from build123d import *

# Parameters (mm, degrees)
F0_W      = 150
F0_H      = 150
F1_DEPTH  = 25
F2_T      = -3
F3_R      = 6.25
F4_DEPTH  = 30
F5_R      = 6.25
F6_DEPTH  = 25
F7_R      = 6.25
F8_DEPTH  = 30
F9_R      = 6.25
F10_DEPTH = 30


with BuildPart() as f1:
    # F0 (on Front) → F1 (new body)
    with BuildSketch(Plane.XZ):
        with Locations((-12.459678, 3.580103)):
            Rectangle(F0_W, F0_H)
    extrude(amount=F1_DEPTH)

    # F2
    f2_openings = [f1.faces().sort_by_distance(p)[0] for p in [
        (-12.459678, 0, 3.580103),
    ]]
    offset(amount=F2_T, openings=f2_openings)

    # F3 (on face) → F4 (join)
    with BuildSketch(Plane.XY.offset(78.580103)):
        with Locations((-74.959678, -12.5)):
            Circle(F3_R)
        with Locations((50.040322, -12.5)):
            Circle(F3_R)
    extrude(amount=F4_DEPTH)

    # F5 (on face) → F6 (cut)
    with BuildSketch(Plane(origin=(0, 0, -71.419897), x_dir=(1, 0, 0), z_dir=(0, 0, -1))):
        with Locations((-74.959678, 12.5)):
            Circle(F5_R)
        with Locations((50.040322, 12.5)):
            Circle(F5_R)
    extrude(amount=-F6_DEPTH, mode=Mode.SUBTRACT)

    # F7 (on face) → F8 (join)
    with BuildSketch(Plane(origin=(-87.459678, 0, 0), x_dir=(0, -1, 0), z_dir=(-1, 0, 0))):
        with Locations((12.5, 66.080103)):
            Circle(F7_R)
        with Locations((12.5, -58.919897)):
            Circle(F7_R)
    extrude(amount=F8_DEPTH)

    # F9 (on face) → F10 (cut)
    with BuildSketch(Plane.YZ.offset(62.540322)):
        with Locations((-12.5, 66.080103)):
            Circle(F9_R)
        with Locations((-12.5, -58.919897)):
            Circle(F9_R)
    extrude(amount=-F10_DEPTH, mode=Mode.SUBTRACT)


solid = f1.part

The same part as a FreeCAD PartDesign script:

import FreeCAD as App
import Part
import Sketcher

V = App.Vector


def faces_at(feature, points):
    """Names of the faces that lie closest to the given points."""
    faces = feature.Shape.Faces
    near = lambda p: min(range(len(faces)), key=lambda i: faces[i].distToShape(Part.Vertex(*p))[0])
    return sorted({f"Face{near(p) + 1}" for p in points})

doc = App.newDocument("Part")
params = doc.addObject("Spreadsheet::Sheet", "Params")
for row, (alias, value) in enumerate([
    ("sketch1_width", "150 mm"),
    ("pad1_length", "25 mm"),
    ("thickness_wall", "3 mm"),
    ("sketch2_diameter", "12.5 mm"),
    ("pad2_length", "30 mm"),
    ("sketch3_diameter", "12.5 mm"),
    ("pocket1_length", "25 mm"),
    ("sketch4_diameter", "12.5 mm"),
    ("pad3_length", "30 mm"),
    ("sketch5_diameter", "12.5 mm"),
    ("pocket2_length", "30 mm"),
], start=1):
    params.set(f"A{row}", alias)
    params.set(f"B{row}", "=" + value)
    params.setAlias(f"B{row}", alias)

body = doc.addObject("PartDesign::Body", "Body")

# Sketch on XZ plane
sketch1 = body.newObject("Sketcher::SketchObject", "Sketch")
sketch1.AttachmentSupport = (doc.getObject("XZ_Plane"), [""])
sketch1.MapMode = "FlatFace"
sketch1.addGeometry(Part.LineSegment(V(-87, 79, 0), V(-87, -71, 0)), False)
sketch1.addGeometry(Part.LineSegment(V(-87, -71, 0), V(63, -71, 0)), False)
sketch1.addGeometry(Part.LineSegment(V(63, -71, 0), V(63, 79, 0)), False)
sketch1.addGeometry(Part.LineSegment(V(63, 79, 0), V(-87, 79, 0)), False)
sketch1.addConstraint(Sketcher.Constraint("Coincident", 0, 2, 1, 1))
sketch1.addConstraint(Sketcher.Constraint("Coincident", 1, 2, 2, 1))
sketch1.addConstraint(Sketcher.Constraint("Coincident", 2, 2, 3, 1))
sketch1.addConstraint(Sketcher.Constraint("Coincident", 3, 2, 0, 1))
sketch1.addConstraint(Sketcher.Constraint("Vertical", 0))
sketch1.addConstraint(Sketcher.Constraint("Horizontal", 1))
sketch1.addConstraint(Sketcher.Constraint("Vertical", 2))
sketch1.addConstraint(Sketcher.Constraint("Horizontal", 3))
sketch1.addConstraint(Sketcher.Constraint("Equal", 3, 0))
sketch1.addConstraint(Sketcher.Constraint("DistanceX", 1, 1, 1, 2, 150.0))
sketch1.addConstraint(Sketcher.Constraint("DistanceX", 0, 2, -1, 1, 87.459678))
sketch1.addConstraint(Sketcher.Constraint("DistanceY", 0, 2, -1, 1, 71.419897))
sketch1.setExpression("Constraints[9]", "Params.sketch1_width")
pad1 = body.newObject("PartDesign::Pad", "Pad")
pad1.Profile = sketch1
pad1.setExpression("Length", "Params.pad1_length")
doc.recompute()

thickness = body.newObject("PartDesign::Thickness", "Thickness")
thickness.Base = (pad1, faces_at(pad1, [(-12.46, 0, 3.58)]))
thickness.setExpression("Value", "Params.thickness_wall")
thickness.Reversed = True
thickness.Join = "Arc"

# Sketch on XY plane
sketch2 = body.newObject("Sketcher::SketchObject", "Sketch001")
sketch2.AttachmentSupport = (doc.getObject("XY_Plane"), [""])
sketch2.MapMode = "FlatFace"
sketch2.AttachmentOffset = App.Placement(V(0, 0, 78.580103), App.Rotation())
sketch2.addGeometry(Part.Circle(V(-75, -12, 0), V(0, 0, 1), 6), False)
sketch2.addGeometry(Part.Circle(V(50, -12, 0), V(0, 0, 1), 6), False)
sketch2.addConstraint(Sketcher.Constraint("Equal", 0, 1))
sketch2.addConstraint(Sketcher.Constraint("Horizontal", 0, 3, 1, 3))
sketch2.addConstraint(Sketcher.Constraint("Diameter", 0, 12.5))
sketch2.addConstraint(Sketcher.Constraint("DistanceX", 0, 3, 1, 3, 125.0))
sketch2.addConstraint(Sketcher.Constraint("DistanceY", 0, 3, -1, 1, 12.5))
sketch2.addConstraint(Sketcher.Constraint("DistanceX", 0, 3, -1, 1, 74.959678))
sketch2.setExpression("Constraints[2]", "Params.sketch2_diameter")
pad2 = body.newObject("PartDesign::Pad", "Pad001")
pad2.Profile = sketch2
pad2.setExpression("Length", "Params.pad2_length")

# Sketch on XY plane
sketch3 = body.newObject("Sketcher::SketchObject", "Sketch002")
sketch3.AttachmentSupport = (doc.getObject("XY_Plane"), [""])
sketch3.MapMode = "FlatFace"
sketch3.AttachmentOffset = App.Placement(V(0, 0, -71.419897), App.Rotation())
sketch3.addGeometry(Part.Circle(V(-75, -12, 0), V(0, 0, 1), 6), False)
sketch3.addGeometry(Part.Circle(V(50, -12, 0), V(0, 0, 1), 6), False)
sketch3.addConstraint(Sketcher.Constraint("Equal", 0, 1))
sketch3.addConstraint(Sketcher.Constraint("Horizontal", 0, 3, 1, 3))
sketch3.addConstraint(Sketcher.Constraint("Diameter", 0, 12.5))
sketch3.addConstraint(Sketcher.Constraint("DistanceX", 0, 3, 1, 3, 125.0))
sketch3.addConstraint(Sketcher.Constraint("DistanceY", 0, 3, -1, 1, 12.5))
sketch3.addConstraint(Sketcher.Constraint("DistanceX", 0, 3, -1, 1, 74.959678))
sketch3.setExpression("Constraints[2]", "Params.sketch3_diameter")
pocket1 = body.newObject("PartDesign::Pocket", "Pocket")
pocket1.Profile = sketch3
pocket1.setExpression("Length", "Params.pocket1_length")
pocket1.Reversed = True

# Sketch on YZ plane
sketch4 = body.newObject("Sketcher::SketchObject", "Sketch003")
sketch4.AttachmentSupport = (doc.getObject("YZ_Plane"), [""])
sketch4.MapMode = "FlatFace"
sketch4.AttachmentOffset = App.Placement(V(0, 0, -87.459678), App.Rotation())
sketch4.addGeometry(Part.Circle(V(-12, 66, 0), V(0, 0, 1), 6), False)
sketch4.addGeometry(Part.Circle(V(-12, -59, 0), V(0, 0, 1), 6), False)
sketch4.addConstraint(Sketcher.Constraint("Equal", 0, 1))
sketch4.addConstraint(Sketcher.Constraint("Vertical", 0, 3, 1, 3))
sketch4.addConstraint(Sketcher.Constraint("Diameter", 0, 12.5))
sketch4.addConstraint(Sketcher.Constraint("DistanceY", 1, 3, 0, 3, 125.0))
sketch4.addConstraint(Sketcher.Constraint("DistanceX", 0, 3, -1, 1, 12.5))
sketch4.addConstraint(Sketcher.Constraint("DistanceY", -1, 1, 0, 3, 66.080103))
sketch4.setExpression("Constraints[2]", "Params.sketch4_diameter")
pad3 = body.newObject("PartDesign::Pad", "Pad002")
pad3.Profile = sketch4
pad3.setExpression("Length", "Params.pad3_length")
pad3.Reversed = True

# Sketch on YZ plane
sketch5 = body.newObject("Sketcher::SketchObject", "Sketch004")
sketch5.AttachmentSupport = (doc.getObject("YZ_Plane"), [""])
sketch5.MapMode = "FlatFace"
sketch5.AttachmentOffset = App.Placement(V(0, 0, 62.540322), App.Rotation())
sketch5.addGeometry(Part.Circle(V(-12, 66, 0), V(0, 0, 1), 6), False)
sketch5.addGeometry(Part.Circle(V(-12, -59, 0), V(0, 0, 1), 6), False)
sketch5.addConstraint(Sketcher.Constraint("Equal", 0, 1))
sketch5.addConstraint(Sketcher.Constraint("Vertical", 0, 3, 1, 3))
sketch5.addConstraint(Sketcher.Constraint("Diameter", 0, 12.5))
sketch5.addConstraint(Sketcher.Constraint("DistanceY", 1, 3, 0, 3, 125.0))
sketch5.addConstraint(Sketcher.Constraint("DistanceX", 0, 3, -1, 1, 12.5))
sketch5.addConstraint(Sketcher.Constraint("DistanceY", -1, 1, 0, 3, 66.080103))
sketch5.setExpression("Constraints[2]", "Params.sketch5_diameter")
pocket2 = body.newObject("PartDesign::Pocket", "Pocket001")
pocket2.Profile = sketch5
pocket2.setExpression("Length", "Params.pocket2_length")

doc.recompute()
